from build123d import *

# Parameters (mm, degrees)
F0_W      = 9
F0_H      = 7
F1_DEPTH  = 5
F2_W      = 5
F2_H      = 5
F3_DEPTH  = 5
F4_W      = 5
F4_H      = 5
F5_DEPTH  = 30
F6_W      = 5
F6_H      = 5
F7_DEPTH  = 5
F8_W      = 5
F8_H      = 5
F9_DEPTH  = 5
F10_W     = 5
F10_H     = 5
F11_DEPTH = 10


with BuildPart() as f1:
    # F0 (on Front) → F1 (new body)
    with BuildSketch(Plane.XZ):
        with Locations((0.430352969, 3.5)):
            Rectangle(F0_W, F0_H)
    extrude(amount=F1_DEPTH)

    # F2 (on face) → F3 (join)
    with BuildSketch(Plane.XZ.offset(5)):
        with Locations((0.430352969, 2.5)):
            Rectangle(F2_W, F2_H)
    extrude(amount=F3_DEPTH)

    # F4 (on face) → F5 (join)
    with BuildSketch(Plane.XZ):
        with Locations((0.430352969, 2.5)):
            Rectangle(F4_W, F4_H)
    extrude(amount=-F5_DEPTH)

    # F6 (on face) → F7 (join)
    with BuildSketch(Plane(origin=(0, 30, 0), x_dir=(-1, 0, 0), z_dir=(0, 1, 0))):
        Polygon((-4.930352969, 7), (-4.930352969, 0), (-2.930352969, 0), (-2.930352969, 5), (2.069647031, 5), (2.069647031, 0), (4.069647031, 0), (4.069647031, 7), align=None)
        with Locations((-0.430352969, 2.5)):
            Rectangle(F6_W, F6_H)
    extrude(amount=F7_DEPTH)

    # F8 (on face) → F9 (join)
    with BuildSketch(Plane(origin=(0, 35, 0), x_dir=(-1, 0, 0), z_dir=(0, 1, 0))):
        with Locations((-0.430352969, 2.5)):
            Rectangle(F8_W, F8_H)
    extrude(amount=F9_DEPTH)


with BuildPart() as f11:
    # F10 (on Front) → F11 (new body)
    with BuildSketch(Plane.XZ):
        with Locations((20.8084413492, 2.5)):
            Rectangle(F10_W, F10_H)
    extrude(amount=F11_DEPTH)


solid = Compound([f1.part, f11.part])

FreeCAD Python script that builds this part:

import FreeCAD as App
import Part
import Sketcher
from FreeCAD import Vector


def add_polygon(sketch, points):
    """Adds a closed chain of lines whose ends are joined by coincident constraints."""
    first, n = sketch.GeometryCount, len(points)
    for a, b in zip(points, points[1:] + points[:1]):
        sketch.addGeometry(Part.LineSegment(App.Vector(*a, 0), App.Vector(*b, 0)), False)
    for i in range(n):
        sketch.addConstraint(Sketcher.Constraint("Coincident", first + i, 2, first + (i + 1) % n, 1))

doc = App.newDocument("Part")
body = doc.addObject("PartDesign::Body", "Body")

# Sketch on XZ plane
sketch1 = body.newObject("Sketcher::SketchObject", "Sketch")
sketch1.AttachmentSupport = (doc.getObject("XZ_Plane"), [""])
sketch1.MapMode = "FlatFace"
add_polygon(sketch1, [(-4, 7), (-4, 0), (5, 0), (5, 7)])  # lines 0-3
sketch1.addConstraint(Sketcher.Constraint("Vertical", 0))
sketch1.addConstraint(Sketcher.Constraint("Horizontal", 1))
sketch1.addConstraint(Sketcher.Constraint("Vertical", 2))
sketch1.addConstraint(Sketcher.Constraint("Horizontal", 3))
sketch1.addConstraint(Sketcher.Constraint("PointOnObject", 0, 2, -1))
sketch1.addConstraint(Sketcher.Constraint("DistanceX", 1, 1, 1, 2, 9.0))
sketch1.addConstraint(Sketcher.Constraint("DistanceY", 0, 2, 0, 1, 7.0))
sketch1.addConstraint(Sketcher.Constraint("DistanceX", 0, 2, -1, 1, 4.069647))
pad1 = body.newObject("PartDesign::Pad", "Pad")
pad1.Profile = sketch1
pad1.Length = 5

# Sketch on XZ plane
sketch2 = body.newObject("Sketcher::SketchObject", "Sketch001")
sketch2.AttachmentSupport = (doc.getObject("XZ_Plane"), [""])
sketch2.MapMode = "FlatFace"
sketch2.AttachmentOffset = App.Placement(Vector(0, 0, 5), App.Rotation())
add_polygon(sketch2, [(-2, 5), (-2, 0), (3, 0), (3, 5)])  # lines 0-3
sketch2.addConstraint(Sketcher.Constraint("Vertical", 0))
sketch2.addConstraint(Sketcher.Constraint("Horizontal", 1))
sketch2.addConstraint(Sketcher.Constraint("Vertical", 2))
sketch2.addConstraint(Sketcher.Constraint("Horizontal", 3))
sketch2.addConstraint(Sketcher.Constraint("PointOnObject", 0, 2, -1))
sketch2.addConstraint(Sketcher.Constraint("Equal", 3, 0))
sketch2.addConstraint(Sketcher.Constraint("DistanceX", 1, 1, 1, 2, 5.0))
sketch2.addConstraint(Sketcher.Constraint("DistanceX", 0, 2, -1, 1, 2.069647))
pad2 = body.newObject("PartDesign::Pad", "Pad001")
pad2.Profile = sketch2
pad2.Length = 5

# Sketch on XZ plane
sketch3 = body.newObject("Sketcher::SketchObject", "Sketch002")
sketch3.AttachmentSupport = (doc.getObject("XZ_Plane"), [""])
sketch3.MapMode = "FlatFace"
add_polygon(sketch3, [(-2, 5), (-2, 0), (3, 0), (3, 5)])  # lines 0-3
sketch3.addConstraint(Sketcher.Constraint("Vertical", 0))
sketch3.addConstraint(Sketcher.Constraint("Horizontal", 1))
sketch3.addConstraint(Sketcher.Constraint("Vertical", 2))
sketch3.addConstraint(Sketcher.Constraint("Horizontal", 3))
sketch3.addConstraint(Sketcher.Constraint("PointOnObject", 0, 2, -1))
sketch3.addConstraint(Sketcher.Constraint("Equal", 3, 0))
sketch3.addConstraint(Sketcher.Constraint("DistanceX", 1, 1, 1, 2, 5.0))
sketch3.addConstraint(Sketcher.Constraint("DistanceX", 0, 2, -1, 1, 2.069647))
pad3 = body.newObject("PartDesign::Pad", "Pad002")
pad3.Profile = sketch3
pad3.Length = 30
pad3.Reversed = True

# Sketch on XZ plane
sketch4 = body.newObject("Sketcher::SketchObject", "Sketch003")
sketch4.AttachmentSupport = (doc.getObject("XZ_Plane"), [""])
sketch4.MapMode = "FlatFace"
sketch4.AttachmentOffset = App.Placement(Vector(0, 0, -30), App.Rotation())
add_polygon(sketch4, [(5, 7), (5, 0), (-4, 0), (-4, 7)])  # lines 0-3
sketch4.addConstraint(Sketcher.Constraint("Vertical", 0))
sketch4.addConstraint(Sketcher.Constraint("Horizontal", 1))
sketch4.addConstraint(Sketcher.Constraint("Vertical", 2))
sketch4.addConstraint(Sketcher.Constraint("Horizontal", 3))
sketch4.addConstraint(Sketcher.Constraint("PointOnObject", 0, 2, -1))
sketch4.addConstraint(Sketcher.Constraint("DistanceX", 1, 2, 1, 1, 9.0))
sketch4.addConstraint(Sketcher.Constraint("DistanceY", 0, 2, 0, 1, 7.0))
sketch4.addConstraint(Sketcher.Constraint("DistanceX", -1, 1, 0, 2, 4.930353))
pad4 = body.newObject("PartDesign::Pad", "Pad003")
pad4.Profile = sketch4
pad4.Length = 5
pad4.Reversed = True

# Sketch on XZ plane
sketch5 = body.newObject("Sketcher::SketchObject", "Sketch004")
sketch5.AttachmentSupport = (doc.getObject("XZ_Plane"), [""])
sketch5.MapMode = "FlatFace"
sketch5.AttachmentOffset = App.Placement(Vector(0, 0, -35), App.Rotation())
add_polygon(sketch5, [(3, 5), (3, 0), (-2, 0), (-2, 5)])  # lines 0-3
sketch5.addConstraint(Sketcher.Constraint("Vertical", 0))
sketch5.addConstraint(Sketcher.Constraint("Horizontal", 1))
sketch5.addConstraint(Sketcher.Constraint("Vertical", 2))
sketch5.addConstraint(Sketcher.Constraint("Horizontal", 3))
sketch5.addConstraint(Sketcher.Constraint("PointOnObject", 0, 2, -1))
sketch5.addConstraint(Sketcher.Constraint("Equal", 3, 0))
sketch5.addConstraint(Sketcher.Constraint("DistanceX", 1, 2, 1, 1, 5.0))
sketch5.addConstraint(Sketcher.Constraint("DistanceX", -1, 1, 0, 2, 2.930353))
pad5 = body.newObject("PartDesign::Pad", "Pad004")
pad5.Profile = sketch5
pad5.Length = 5
pad5.Reversed = True
body2 = doc.addObject("PartDesign::Body", "Body001")

# Sketch on XZ plane
sketch6 = body2.newObject("Sketcher::SketchObject", "Sketch005")
sketch6.AttachmentSupport = (doc.getObject("XZ_Plane001"), [""])
sketch6.MapMode = "FlatFace"
add_polygon(sketch6, [(18, 5), (18, 0), (23, 0), (23, 5)])  # lines 0-3
sketch6.addConstraint(Sketcher.Constraint("Vertical", 0))
sketch6.addConstraint(Sketcher.Constraint("Horizontal", 1))
sketch6.addConstraint(Sketcher.Constraint("Vertical", 2))
sketch6.addConstraint(Sketcher.Constraint("Horizontal", 3))
sketch6.addConstraint(Sketcher.Constraint("PointOnObject", 0, 2, -1))
sketch6.addConstraint(Sketcher.Constraint("Equal", 3, 0))
sketch6.addConstraint(Sketcher.Constraint("DistanceX", 1, 1, 1, 2, 5.0))
sketch6.addConstraint(Sketcher.Constraint("DistanceX", -1, 1, 0, 2, 18.308441))
pad6 = body2.newObject("PartDesign::Pad", "Pad005")
pad6.Profile = sketch6
pad6.Length = 10

doc.recompute()
